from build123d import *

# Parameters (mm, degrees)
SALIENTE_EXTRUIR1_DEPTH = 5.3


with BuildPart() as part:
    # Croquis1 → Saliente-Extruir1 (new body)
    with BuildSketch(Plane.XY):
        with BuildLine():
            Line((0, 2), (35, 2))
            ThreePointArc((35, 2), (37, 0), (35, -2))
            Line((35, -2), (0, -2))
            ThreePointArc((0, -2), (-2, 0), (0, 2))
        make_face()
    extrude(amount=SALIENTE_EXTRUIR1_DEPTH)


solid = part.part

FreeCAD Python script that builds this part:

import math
import FreeCAD as App
import Part
import Sketcher

V = App.Vector
Q = App.Units.Quantity

doc = App.newDocument("Part")
params = doc.addObject("Spreadsheet::Sheet", "Params")
for row, (alias, value) in enumerate([
    ("sketch1_radius", "2 mm"),
    ("sketch1_width", "35 mm"),
    ("pad1_length", "5.3 mm"),
], start=1):
    params.set(f"A{row}", alias)
    params.set(f"B{row}", "=" + value)
    params.setAlias(f"B{row}", alias)

body = doc.addObject("PartDesign::Body", "Body")

# Sketch on XY plane
sketch1 = body.newObject("Sketcher::SketchObject", "Sketch")
sketch1.AttachmentSupport = (doc.getObject("XY_Plane"), [""])
sketch1.MapMode = "FlatFace"
sketch1.addGeometry([
    Part.LineSegment(V(35, 2, 0), V(0, 2, 0)),
    Part.ArcOfCircle(Part.Circle(V(0, 0, 0), V(0, 0, 1), 2), math.radians(90), math.radians(270)),
    Part.LineSegment(V(0, -2, 0), V(35, -2, 0)),
    Part.ArcOfCircle(Part.Circle(V(35, 0, 0), V(0, 0, 1), 2), math.radians(-90), math.radians(90)),
], False)
sketch1.addConstraint([
    Sketcher.Constraint("Tangent", 0, 2, 1, 1),
    Sketcher.Constraint("Tangent", 1, 2, 2, 1),
    Sketcher.Constraint("Tangent", 2, 2, 3, 1),
    Sketcher.Constraint("Tangent", 3, 2, 0, 1),
    Sketcher.Constraint("Horizontal", 0),
    Sketcher.Constraint("Horizontal", 2),
    Sketcher.Constraint("Coincident", 1, 3, -1, 1),
    Sketcher.Constraint("Radius", 1, Q("2 mm")),
    Sketcher.Constraint("DistanceX", 0, 2, 0, 1, Q("35 mm")),
])
sketch1.setExpression("Constraints[7]", "Params.sketch1_radius")
sketch1.setExpression("Constraints[8]", "Params.sketch1_width")
pad1 = body.newObject("PartDesign::Pad", "Pad")
pad1.Profile = sketch1
pad1.setExpression("Length", "Params.pad1_length")

doc.recompute()
